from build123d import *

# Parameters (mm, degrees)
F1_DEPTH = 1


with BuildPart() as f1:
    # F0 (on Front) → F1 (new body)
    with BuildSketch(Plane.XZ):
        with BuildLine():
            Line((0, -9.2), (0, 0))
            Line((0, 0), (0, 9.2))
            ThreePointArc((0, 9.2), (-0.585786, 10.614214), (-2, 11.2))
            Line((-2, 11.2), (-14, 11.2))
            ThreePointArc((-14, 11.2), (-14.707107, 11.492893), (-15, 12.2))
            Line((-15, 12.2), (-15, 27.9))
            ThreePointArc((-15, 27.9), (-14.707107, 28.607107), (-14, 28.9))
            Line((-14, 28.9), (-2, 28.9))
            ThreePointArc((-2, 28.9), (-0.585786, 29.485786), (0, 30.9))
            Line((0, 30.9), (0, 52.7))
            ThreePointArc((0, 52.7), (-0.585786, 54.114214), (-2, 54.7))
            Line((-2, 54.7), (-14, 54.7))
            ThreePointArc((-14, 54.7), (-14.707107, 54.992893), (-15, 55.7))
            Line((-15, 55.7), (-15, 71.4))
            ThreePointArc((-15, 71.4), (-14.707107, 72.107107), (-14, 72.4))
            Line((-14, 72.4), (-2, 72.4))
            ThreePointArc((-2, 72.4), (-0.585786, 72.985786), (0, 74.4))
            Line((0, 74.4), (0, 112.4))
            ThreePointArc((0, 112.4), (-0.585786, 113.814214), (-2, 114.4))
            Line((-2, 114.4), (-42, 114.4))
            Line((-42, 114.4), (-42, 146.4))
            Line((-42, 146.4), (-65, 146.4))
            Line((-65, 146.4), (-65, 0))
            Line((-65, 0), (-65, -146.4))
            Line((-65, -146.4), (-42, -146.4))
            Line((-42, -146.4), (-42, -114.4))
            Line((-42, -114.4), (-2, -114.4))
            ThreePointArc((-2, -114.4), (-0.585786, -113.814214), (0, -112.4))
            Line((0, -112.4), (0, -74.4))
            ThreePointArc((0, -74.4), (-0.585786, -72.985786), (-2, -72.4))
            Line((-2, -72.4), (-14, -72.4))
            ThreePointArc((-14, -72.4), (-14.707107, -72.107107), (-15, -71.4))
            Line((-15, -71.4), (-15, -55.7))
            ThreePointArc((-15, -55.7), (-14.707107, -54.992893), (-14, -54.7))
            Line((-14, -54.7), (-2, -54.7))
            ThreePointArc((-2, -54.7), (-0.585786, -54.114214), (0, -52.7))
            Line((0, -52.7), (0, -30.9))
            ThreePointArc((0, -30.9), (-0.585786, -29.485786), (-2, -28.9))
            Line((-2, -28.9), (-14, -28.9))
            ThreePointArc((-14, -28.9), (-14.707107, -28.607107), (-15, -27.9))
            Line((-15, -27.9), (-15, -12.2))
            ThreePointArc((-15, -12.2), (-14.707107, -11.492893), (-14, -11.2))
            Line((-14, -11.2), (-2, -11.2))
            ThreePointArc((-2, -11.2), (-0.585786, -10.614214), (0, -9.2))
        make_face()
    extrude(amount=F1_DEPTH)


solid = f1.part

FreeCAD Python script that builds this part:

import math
import FreeCAD as App
import Part
import Sketcher
Q = App.Units.Quantity

doc = App.newDocument("Part")
body = doc.addObject("PartDesign::Body", "Body")

# Sketch on XZ plane
sketch1 = body.newObject("Sketcher::SketchObject", "Sketch")
sketch1.AttachmentSupport = (doc.getObject("XZ_Plane"), [""])
sketch1.MapMode = "FlatFace"
sketch1.addGeometry(Part.LineSegment(App.Vector(0, -9.2, 0), App.Vector(0, 9.2, 0)), False)
sketch1.addGeometry(Part.ArcOfCircle(Part.Circle(App.Vector(-2, 9.2, 0), App.Vector(0, 0, 1), 2), math.radians(0), math.radians(90)), False)
sketch1.addGeometry(Part.LineSegment(App.Vector(-2, 11.2, 0), App.Vector(-14, 11.2, 0)), False)
sketch1.addGeometry(Part.ArcOfCircle(Part.Circle(App.Vector(-14, 12.2, 0), App.Vector(0, 0, 1), 1), math.radians(180), math.radians(270)), False)
sketch1.addGeometry(Part.LineSegment(App.Vector(-15, 12.2, 0), App.Vector(-15, 27.9, 0)), False)
sketch1.addGeometry(Part.ArcOfCircle(Part.Circle(App.Vector(-14, 27.9, 0), App.Vector(0, 0, 1), 1), math.radians(90), math.radians(180)), False)
sketch1.addGeometry(Part.LineSegment(App.Vector(-14, 28.9, 0), App.Vector(-2, 28.9, 0)), False)
sketch1.addGeometry(Part.ArcOfCircle(Part.Circle(App.Vector(-2, 30.9, 0), App.Vector(0, 0, 1), 2), math.radians(-90), math.radians(0)), False)
sketch1.addGeometry(Part.LineSegment(App.Vector(0, 30.9, 0), App.Vector(0, 52.7, 0)), False)
sketch1.addGeometry(Part.ArcOfCircle(Part.Circle(App.Vector(-2, 52.7, 0), App.Vector(0, 0, 1), 2), math.radians(0), math.radians(90)), False)
sketch1.addGeometry(Part.LineSegment(App.Vector(-2, 54.7, 0), App.Vector(-14, 54.7, 0)), False)
sketch1.addGeometry(Part.ArcOfCircle(Part.Circle(App.Vector(-14, 55.7, 0), App.Vector(0, 0, 1), 1), math.radians(180), math.radians(270)), False)
sketch1.addGeometry(Part.LineSegment(App.Vector(-15, 55.7, 0), App.Vector(-15, 71.4, 0)), False)
sketch1.addGeometry(Part.ArcOfCircle(Part.Circle(App.Vector(-14, 71.4, 0), App.Vector(0, 0, 1), 1), math.radians(90), math.radians(180)), False)
sketch1.addGeometry(Part.LineSegment(App.Vector(-14, 72.4, 0), App.Vector(-2, 72.4, 0)), False)
sketch1.addGeometry(Part.ArcOfCircle(Part.Circle(App.Vector(-2, 74.4, 0), App.Vector(0, 0, 1), 2), math.radians(-90), math.radians(0)), False)
sketch1.addGeometry(Part.LineSegment(App.Vector(0, 74.4, 0), App.Vector(0, 112.4, 0)), False)
sketch1.addGeometry(Part.ArcOfCircle(Part.Circle(App.Vector(-2, 112.4, 0), App.Vector(0, 0, 1), 2), math.radians(0), math.radians(90)), False)
sketch1.addGeometry(Part.LineSegment(App.Vector(-2, 114.4, 0), App.Vector(-42, 114.4, 0)), False)
sketch1.addGeometry(Part.LineSegment(App.Vector(-42, 114.4, 0), App.Vector(-42, 146.4, 0)), False)
sketch1.addGeometry(Part.LineSegment(App.Vector(-42, 146.4, 0), App.Vector(-65, 146.4, 0)), False)
sketch1.addGeometry(Part.LineSegment(App.Vector(-65, 146.4, 0), App.Vector(-65, -146.4, 0)), False)
sketch1.addGeometry(Part.LineSegment(App.Vector(-65, -146.4, 0), App.Vector(-42, -146.4, 0)), False)
sketch1.addGeometry(Part.LineSegment(App.Vector(-42, -146.4, 0), App.Vector(-42, -114.4, 0)), False)
sketch1.addGeometry(Part.LineSegment(App.Vector(-42, -114.4, 0), App.Vector(-2, -114.4, 0)), False)
sketch1.addGeometry(Part.ArcOfCircle(Part.Circle(App.Vector(-2, -112.4, 0), App.Vector(0, 0, 1), 2), math.radians(-90), math.radians(0)), False)
sketch1.addGeometry(Part.LineSegment(App.Vector(0, -112.4, 0), App.Vector(0, -74.4, 0)), False)
sketch1.addGeometry(Part.ArcOfCircle(Part.Circle(App.Vector(-2, -74.4, 0), App.Vector(0, 0, 1), 2), math.radians(0), math.radians(90)), False)
sketch1.addGeometry(Part.LineSegment(App.Vector(-2, -72.4, 0), App.Vector(-14, -72.4, 0)), False)
sketch1.addGeometry(Part.ArcOfCircle(Part.Circle(App.Vector(-14, -71.4, 0), App.Vector(0, 0, 1), 1), math.radians(180), math.radians(270)), False)
sketch1.addGeometry(Part.LineSegment(App.Vector(-15, -71.4, 0), App.Vector(-15, -55.7, 0)), False)
sketch1.addGeometry(Part.ArcOfCircle(Part.Circle(App.Vector(-14, -55.7, 0), App.Vector(0, 0, 1), 1), math.radians(90), math.radians(180)), False)
sketch1.addGeometry(Part.LineSegment(App.Vector(-14, -54.7, 0), App.Vector(-2, -54.7, 0)), False)
sketch1.addGeometry(Part.ArcOfCircle(Part.Circle(App.Vector(-2, -52.7, 0), App.Vector(0, 0, 1), 2), math.radians(-90), math.radians(0)), False)
sketch1.addGeometry(Part.LineSegment(App.Vector(0, -52.7, 0), App.Vector(0, -30.9, 0)), False)
sketch1.addGeometry(Part.ArcOfCircle(Part.Circle(App.Vector(-2, -30.9, 0), App.Vector(0, 0, 1), 2), math.radians(0), math.radians(90)), False)
sketch1.addGeometry(Part.LineSegment(App.Vector(-2, -28.9, 0), App.Vector(-14, -28.9, 0)), False)
sketch1.addGeometry(Part.ArcOfCircle(Part.Circle(App.Vector(-14, -27.9, 0), App.Vector(0, 0, 1), 1), math.radians(180), math.radians(270)), False)
sketch1.addGeometry(Part.LineSegment(App.Vector(-15, -27.9, 0), App.Vector(-15, -12.2, 0)), False)
sketch1.addGeometry(Part.ArcOfCircle(Part.Circle(App.Vector(-14, -12.2, 0), App.Vector(0, 0, 1), 1), math.radians(90), math.radians(180)), False)
sketch1.addGeometry(Part.LineSegment(App.Vector(-14, -11.2, 0), App.Vector(-2, -11.2, 0)), False)
sketch1.addGeometry(Part.ArcOfCircle(Part.Circle(App.Vector(-2, -9.2, 0), App.Vector(0, 0, 1), 2), math.radians(-90), math.radians(0)), False)
sketch1.addConstraint(Sketcher.Constraint("Tangent", 0, 2, 1, 1))
sketch1.addConstraint(Sketcher.Constraint("Tangent", 1, 2, 2, 1))
sketch1.addConstraint(Sketcher.Constraint("Tangent", 2, 2, 3, 2))
sketch1.addConstraint(Sketcher.Constraint("Tangent", 3, 1, 4, 1))
sketch1.addConstraint(Sketcher.Constraint("Tangent", 4, 2, 5, 2))
sketch1.addConstraint(Sketcher.Constraint("Tangent", 5, 1, 6, 1))
sketch1.addConstraint(Sketcher.Constraint("Tangent", 6, 2, 7, 1))
sketch1.addConstraint(Sketcher.Constraint("Tangent", 7, 2, 8, 1))
sketch1.addConstraint(Sketcher.Constraint("Tangent", 8, 2, 9, 1))
sketch1.addConstraint(Sketcher.Constraint("Tangent", 9, 2, 10, 1))
sketch1.addConstraint(Sketcher.Constraint("Tangent", 10, 2, 11, 2))
sketch1.addConstraint(Sketcher.Constraint("Tangent", 11, 1, 12, 1))
sketch1.addConstraint(Sketcher.Constraint("Tangent", 12, 2, 13, 2))
sketch1.addConstraint(Sketcher.Constraint("Tangent", 13, 1, 14, 1))
sketch1.addConstraint(Sketcher.Constraint("Tangent", 14, 2, 15, 1))
sketch1.addConstraint(Sketcher.Constraint("Tangent", 15, 2, 16, 1))
sketch1.addConstraint(Sketcher.Constraint("Tangent", 16, 2, 17, 1))
sketch1.addConstraint(Sketcher.Constraint("Tangent", 17, 2, 18, 1))
sketch1.addConstraint(Sketcher.Constraint("Coincident", 18, 2, 19, 1))
sketch1.addConstraint(Sketcher.Constraint("Coincident", 19, 2, 20, 1))
sketch1.addConstraint(Sketcher.Constraint("Coincident", 20, 2, 21, 1))
sketch1.addConstraint(Sketcher.Constraint("Coincident", 21, 2, 22, 1))
sketch1.addConstraint(Sketcher.Constraint("Coincident", 22, 2, 23, 1))
sketch1.addConstraint(Sketcher.Constraint("Coincident", 23, 2, 24, 1))
sketch1.addConstraint(Sketcher.Constraint("Tangent", 24, 2, 25, 1))
sketch1.addConstraint(Sketcher.Constraint("Tangent", 25, 2, 26, 1))
sketch1.addConstraint(Sketcher.Constraint("Tangent", 26, 2, 27, 1))
sketch1.addConstraint(Sketcher.Constraint("Tangent", 27, 2, 28, 1))
sketch1.addConstraint(Sketcher.Constraint("Tangent", 28, 2, 29, 2))
sketch1.addConstraint(Sketcher.Constraint("Tangent", 29, 1, 30, 1))
sketch1.addConstraint(Sketcher.Constraint("Tangent", 30, 2, 31, 2))
sketch1.addConstraint(Sketcher.Constraint("Tangent", 31, 1, 32, 1))
sketch1.addConstraint(Sketcher.Constraint("Tangent", 32, 2, 33, 1))
sketch1.addConstraint(Sketcher.Constraint("Tangent", 33, 2, 34, 1))
sketch1.addConstraint(Sketcher.Constraint("Tangent", 34, 2, 35, 1))
sketch1.addConstraint(Sketcher.Constraint("Tangent", 35, 2, 36, 1))
sketch1.addConstraint(Sketcher.Constraint("Tangent", 36, 2, 37, 2))
sketch1.addConstraint(Sketcher.Constraint("Tangent", 37, 1, 38, 1))
sketch1.addConstraint(Sketcher.Constraint("Tangent", 38, 2, 39, 2))
sketch1.addConstraint(Sketcher.Constraint("Tangent", 39, 1, 40, 1))
sketch1.addConstraint(Sketcher.Constraint("Tangent", 40, 2, 41, 1))
sketch1.addConstraint(Sketcher.Constraint("Tangent", 41, 2, 0, 1))
sketch1.addConstraint(Sketcher.Constraint("Vertical", 0))
sketch1.addConstraint(Sketcher.Constraint("Horizontal", 2))
sketch1.addConstraint(Sketcher.Constraint("Vertical", 4))
sketch1.addConstraint(Sketcher.Constraint("Horizontal", 6))
sketch1.addConstraint(Sketcher.Constraint("Vertical", 8))
sketch1.addConstraint(Sketcher.Constraint("Horizontal", 10))
sketch1.addConstraint(Sketcher.Constraint("Vertical", 12))
sketch1.addConstraint(Sketcher.Constraint("Horizontal", 14))
sketch1.addConstraint(Sketcher.Constraint("Vertical", 16))
sketch1.addConstraint(Sketcher.Constraint("Horizontal", 18))
sketch1.addConstraint(Sketcher.Constraint("Vertical", 19))
sketch1.addConstraint(Sketcher.Constraint("Horizontal", 20))
sketch1.addConstraint(Sketcher.Constraint("Vertical", 21))
sketch1.addConstraint(Sketcher.Constraint("Horizontal", 22))
sketch1.addConstraint(Sketcher.Constraint("Vertical", 23))
sketch1.addConstraint(Sketcher.Constraint("Horizontal", 24))
sketch1.addConstraint(Sketcher.Constraint("Vertical", 26))
sketch1.addConstraint(Sketcher.Constraint("Horizontal", 28))
sketch1.addConstraint(Sketcher.Constraint("Vertical", 30))
sketch1.addConstraint(Sketcher.Constraint("Horizontal", 32))
sketch1.addConstraint(Sketcher.Constraint("Vertical", 34))
sketch1.addConstraint(Sketcher.Constraint("Horizontal", 36))
sketch1.addConstraint(Sketcher.Constraint("Vertical", 38))
sketch1.addConstraint(Sketcher.Constraint("Horizontal", 40))
sketch1.addConstraint(Sketcher.Constraint("Equal", 3, 5))
sketch1.addConstraint(Sketcher.Constraint("Equal", 1, 7))
sketch1.addConstraint(Sketcher.Constraint("Equal", 7, 9))
sketch1.addConstraint(Sketcher.Constraint("Equal", 5, 11))
sketch1.addConstraint(Sketcher.Constraint("Equal", 11, 13))
sketch1.addConstraint(Sketcher.Constraint("Equal", 9, 15))
sketch1.addConstraint(Sketcher.Constraint("Equal", 15, 17))
sketch1.addConstraint(Sketcher.Constraint("Equal", 17, 25))
sketch1.addConstraint(Sketcher.Constraint("Equal", 25, 27))
sketch1.addConstraint(Sketcher.Constraint("Equal", 13, 29))
sketch1.addConstraint(Sketcher.Constraint("Equal", 29, 31))
sketch1.addConstraint(Sketcher.Constraint("Equal", 27, 33))
sketch1.addConstraint(Sketcher.Constraint("Equal", 33, 35))
sketch1.addConstraint(Sketcher.Constraint("Equal", 31, 37))
sketch1.addConstraint(Sketcher.Constraint("Equal", 37, 39))
sketch1.addConstraint(Sketcher.Constraint("Equal", 35, 41))
sketch1.addConstraint(Sketcher.Constraint("Symmetric", 16, 2, 25, 2, -1, 1))
sketch1.addConstraint(Sketcher.Constraint("Symmetric", 8, 2, 33, 2, -1, 1))
sketch1.addConstraint(Sketcher.Constraint("Symmetric", 0, 2, 41, 2, -1, 1))
sketch1.addConstraint(Sketcher.Constraint("Symmetric", 15, 3, 27, 3, -1))
sketch1.addConstraint(Sketcher.Constraint("Symmetric", 7, 3, 35, 3, -1))
sketch1.addConstraint(Sketcher.Constraint("Symmetric", 19, 2, 22, 2, -1))
sketch1.addConstraint(Sketcher.Constraint("Vertical", 5, 3, 11, 3))
sketch1.addConstraint(Sketcher.Constraint("Vertical", 13, 3, 29, 3))
sketch1.addConstraint(Sketcher.Constraint("Vertical", 31, 3, 37, 3))
sketch1.addConstraint(Sketcher.Constraint("Equal", 4, 12))
sketch1.addConstraint(Sketcher.Constraint("Radius", 1, Q("1.999999 mm")))
sketch1.addConstraint(Sketcher.Constraint("Radius", 3, Q("0.999999 mm")))
sketch1.addConstraint(Sketcher.Constraint("DistanceX", 2, 2, 2, 1, Q("12 mm")))
sketch1.addConstraint(Sketcher.Constraint("DistanceX", 18, 2, 18, 1, Q("40 mm")))
sketch1.addConstraint(Sketcher.Constraint("DistanceX", 20, 2, 20, 1, Q("23 mm")))
sketch1.addConstraint(Sketcher.Constraint("DistanceY", 16, 1, 16, 2, Q("38 mm")))
sketch1.addConstraint(Sketcher.Constraint("DistanceY", 19, 1, 19, 2, Q("32 mm")))
sketch1.addConstraint(Sketcher.Constraint("DistanceY", 0, 1, 0, 2, Q("18.4 mm")))
sketch1.addConstraint(Sketcher.Constraint("DistanceY", 4, 1, 4, 2, Q("15.7 mm")))
sketch1.addConstraint(Sketcher.Constraint("DistanceY", 8, 1, 8, 2, Q("21.8 mm")))
pad1 = body.newObject("PartDesign::Pad", "Pad")
pad1.Profile = sketch1
pad1.Length = 1

doc.recompute()
